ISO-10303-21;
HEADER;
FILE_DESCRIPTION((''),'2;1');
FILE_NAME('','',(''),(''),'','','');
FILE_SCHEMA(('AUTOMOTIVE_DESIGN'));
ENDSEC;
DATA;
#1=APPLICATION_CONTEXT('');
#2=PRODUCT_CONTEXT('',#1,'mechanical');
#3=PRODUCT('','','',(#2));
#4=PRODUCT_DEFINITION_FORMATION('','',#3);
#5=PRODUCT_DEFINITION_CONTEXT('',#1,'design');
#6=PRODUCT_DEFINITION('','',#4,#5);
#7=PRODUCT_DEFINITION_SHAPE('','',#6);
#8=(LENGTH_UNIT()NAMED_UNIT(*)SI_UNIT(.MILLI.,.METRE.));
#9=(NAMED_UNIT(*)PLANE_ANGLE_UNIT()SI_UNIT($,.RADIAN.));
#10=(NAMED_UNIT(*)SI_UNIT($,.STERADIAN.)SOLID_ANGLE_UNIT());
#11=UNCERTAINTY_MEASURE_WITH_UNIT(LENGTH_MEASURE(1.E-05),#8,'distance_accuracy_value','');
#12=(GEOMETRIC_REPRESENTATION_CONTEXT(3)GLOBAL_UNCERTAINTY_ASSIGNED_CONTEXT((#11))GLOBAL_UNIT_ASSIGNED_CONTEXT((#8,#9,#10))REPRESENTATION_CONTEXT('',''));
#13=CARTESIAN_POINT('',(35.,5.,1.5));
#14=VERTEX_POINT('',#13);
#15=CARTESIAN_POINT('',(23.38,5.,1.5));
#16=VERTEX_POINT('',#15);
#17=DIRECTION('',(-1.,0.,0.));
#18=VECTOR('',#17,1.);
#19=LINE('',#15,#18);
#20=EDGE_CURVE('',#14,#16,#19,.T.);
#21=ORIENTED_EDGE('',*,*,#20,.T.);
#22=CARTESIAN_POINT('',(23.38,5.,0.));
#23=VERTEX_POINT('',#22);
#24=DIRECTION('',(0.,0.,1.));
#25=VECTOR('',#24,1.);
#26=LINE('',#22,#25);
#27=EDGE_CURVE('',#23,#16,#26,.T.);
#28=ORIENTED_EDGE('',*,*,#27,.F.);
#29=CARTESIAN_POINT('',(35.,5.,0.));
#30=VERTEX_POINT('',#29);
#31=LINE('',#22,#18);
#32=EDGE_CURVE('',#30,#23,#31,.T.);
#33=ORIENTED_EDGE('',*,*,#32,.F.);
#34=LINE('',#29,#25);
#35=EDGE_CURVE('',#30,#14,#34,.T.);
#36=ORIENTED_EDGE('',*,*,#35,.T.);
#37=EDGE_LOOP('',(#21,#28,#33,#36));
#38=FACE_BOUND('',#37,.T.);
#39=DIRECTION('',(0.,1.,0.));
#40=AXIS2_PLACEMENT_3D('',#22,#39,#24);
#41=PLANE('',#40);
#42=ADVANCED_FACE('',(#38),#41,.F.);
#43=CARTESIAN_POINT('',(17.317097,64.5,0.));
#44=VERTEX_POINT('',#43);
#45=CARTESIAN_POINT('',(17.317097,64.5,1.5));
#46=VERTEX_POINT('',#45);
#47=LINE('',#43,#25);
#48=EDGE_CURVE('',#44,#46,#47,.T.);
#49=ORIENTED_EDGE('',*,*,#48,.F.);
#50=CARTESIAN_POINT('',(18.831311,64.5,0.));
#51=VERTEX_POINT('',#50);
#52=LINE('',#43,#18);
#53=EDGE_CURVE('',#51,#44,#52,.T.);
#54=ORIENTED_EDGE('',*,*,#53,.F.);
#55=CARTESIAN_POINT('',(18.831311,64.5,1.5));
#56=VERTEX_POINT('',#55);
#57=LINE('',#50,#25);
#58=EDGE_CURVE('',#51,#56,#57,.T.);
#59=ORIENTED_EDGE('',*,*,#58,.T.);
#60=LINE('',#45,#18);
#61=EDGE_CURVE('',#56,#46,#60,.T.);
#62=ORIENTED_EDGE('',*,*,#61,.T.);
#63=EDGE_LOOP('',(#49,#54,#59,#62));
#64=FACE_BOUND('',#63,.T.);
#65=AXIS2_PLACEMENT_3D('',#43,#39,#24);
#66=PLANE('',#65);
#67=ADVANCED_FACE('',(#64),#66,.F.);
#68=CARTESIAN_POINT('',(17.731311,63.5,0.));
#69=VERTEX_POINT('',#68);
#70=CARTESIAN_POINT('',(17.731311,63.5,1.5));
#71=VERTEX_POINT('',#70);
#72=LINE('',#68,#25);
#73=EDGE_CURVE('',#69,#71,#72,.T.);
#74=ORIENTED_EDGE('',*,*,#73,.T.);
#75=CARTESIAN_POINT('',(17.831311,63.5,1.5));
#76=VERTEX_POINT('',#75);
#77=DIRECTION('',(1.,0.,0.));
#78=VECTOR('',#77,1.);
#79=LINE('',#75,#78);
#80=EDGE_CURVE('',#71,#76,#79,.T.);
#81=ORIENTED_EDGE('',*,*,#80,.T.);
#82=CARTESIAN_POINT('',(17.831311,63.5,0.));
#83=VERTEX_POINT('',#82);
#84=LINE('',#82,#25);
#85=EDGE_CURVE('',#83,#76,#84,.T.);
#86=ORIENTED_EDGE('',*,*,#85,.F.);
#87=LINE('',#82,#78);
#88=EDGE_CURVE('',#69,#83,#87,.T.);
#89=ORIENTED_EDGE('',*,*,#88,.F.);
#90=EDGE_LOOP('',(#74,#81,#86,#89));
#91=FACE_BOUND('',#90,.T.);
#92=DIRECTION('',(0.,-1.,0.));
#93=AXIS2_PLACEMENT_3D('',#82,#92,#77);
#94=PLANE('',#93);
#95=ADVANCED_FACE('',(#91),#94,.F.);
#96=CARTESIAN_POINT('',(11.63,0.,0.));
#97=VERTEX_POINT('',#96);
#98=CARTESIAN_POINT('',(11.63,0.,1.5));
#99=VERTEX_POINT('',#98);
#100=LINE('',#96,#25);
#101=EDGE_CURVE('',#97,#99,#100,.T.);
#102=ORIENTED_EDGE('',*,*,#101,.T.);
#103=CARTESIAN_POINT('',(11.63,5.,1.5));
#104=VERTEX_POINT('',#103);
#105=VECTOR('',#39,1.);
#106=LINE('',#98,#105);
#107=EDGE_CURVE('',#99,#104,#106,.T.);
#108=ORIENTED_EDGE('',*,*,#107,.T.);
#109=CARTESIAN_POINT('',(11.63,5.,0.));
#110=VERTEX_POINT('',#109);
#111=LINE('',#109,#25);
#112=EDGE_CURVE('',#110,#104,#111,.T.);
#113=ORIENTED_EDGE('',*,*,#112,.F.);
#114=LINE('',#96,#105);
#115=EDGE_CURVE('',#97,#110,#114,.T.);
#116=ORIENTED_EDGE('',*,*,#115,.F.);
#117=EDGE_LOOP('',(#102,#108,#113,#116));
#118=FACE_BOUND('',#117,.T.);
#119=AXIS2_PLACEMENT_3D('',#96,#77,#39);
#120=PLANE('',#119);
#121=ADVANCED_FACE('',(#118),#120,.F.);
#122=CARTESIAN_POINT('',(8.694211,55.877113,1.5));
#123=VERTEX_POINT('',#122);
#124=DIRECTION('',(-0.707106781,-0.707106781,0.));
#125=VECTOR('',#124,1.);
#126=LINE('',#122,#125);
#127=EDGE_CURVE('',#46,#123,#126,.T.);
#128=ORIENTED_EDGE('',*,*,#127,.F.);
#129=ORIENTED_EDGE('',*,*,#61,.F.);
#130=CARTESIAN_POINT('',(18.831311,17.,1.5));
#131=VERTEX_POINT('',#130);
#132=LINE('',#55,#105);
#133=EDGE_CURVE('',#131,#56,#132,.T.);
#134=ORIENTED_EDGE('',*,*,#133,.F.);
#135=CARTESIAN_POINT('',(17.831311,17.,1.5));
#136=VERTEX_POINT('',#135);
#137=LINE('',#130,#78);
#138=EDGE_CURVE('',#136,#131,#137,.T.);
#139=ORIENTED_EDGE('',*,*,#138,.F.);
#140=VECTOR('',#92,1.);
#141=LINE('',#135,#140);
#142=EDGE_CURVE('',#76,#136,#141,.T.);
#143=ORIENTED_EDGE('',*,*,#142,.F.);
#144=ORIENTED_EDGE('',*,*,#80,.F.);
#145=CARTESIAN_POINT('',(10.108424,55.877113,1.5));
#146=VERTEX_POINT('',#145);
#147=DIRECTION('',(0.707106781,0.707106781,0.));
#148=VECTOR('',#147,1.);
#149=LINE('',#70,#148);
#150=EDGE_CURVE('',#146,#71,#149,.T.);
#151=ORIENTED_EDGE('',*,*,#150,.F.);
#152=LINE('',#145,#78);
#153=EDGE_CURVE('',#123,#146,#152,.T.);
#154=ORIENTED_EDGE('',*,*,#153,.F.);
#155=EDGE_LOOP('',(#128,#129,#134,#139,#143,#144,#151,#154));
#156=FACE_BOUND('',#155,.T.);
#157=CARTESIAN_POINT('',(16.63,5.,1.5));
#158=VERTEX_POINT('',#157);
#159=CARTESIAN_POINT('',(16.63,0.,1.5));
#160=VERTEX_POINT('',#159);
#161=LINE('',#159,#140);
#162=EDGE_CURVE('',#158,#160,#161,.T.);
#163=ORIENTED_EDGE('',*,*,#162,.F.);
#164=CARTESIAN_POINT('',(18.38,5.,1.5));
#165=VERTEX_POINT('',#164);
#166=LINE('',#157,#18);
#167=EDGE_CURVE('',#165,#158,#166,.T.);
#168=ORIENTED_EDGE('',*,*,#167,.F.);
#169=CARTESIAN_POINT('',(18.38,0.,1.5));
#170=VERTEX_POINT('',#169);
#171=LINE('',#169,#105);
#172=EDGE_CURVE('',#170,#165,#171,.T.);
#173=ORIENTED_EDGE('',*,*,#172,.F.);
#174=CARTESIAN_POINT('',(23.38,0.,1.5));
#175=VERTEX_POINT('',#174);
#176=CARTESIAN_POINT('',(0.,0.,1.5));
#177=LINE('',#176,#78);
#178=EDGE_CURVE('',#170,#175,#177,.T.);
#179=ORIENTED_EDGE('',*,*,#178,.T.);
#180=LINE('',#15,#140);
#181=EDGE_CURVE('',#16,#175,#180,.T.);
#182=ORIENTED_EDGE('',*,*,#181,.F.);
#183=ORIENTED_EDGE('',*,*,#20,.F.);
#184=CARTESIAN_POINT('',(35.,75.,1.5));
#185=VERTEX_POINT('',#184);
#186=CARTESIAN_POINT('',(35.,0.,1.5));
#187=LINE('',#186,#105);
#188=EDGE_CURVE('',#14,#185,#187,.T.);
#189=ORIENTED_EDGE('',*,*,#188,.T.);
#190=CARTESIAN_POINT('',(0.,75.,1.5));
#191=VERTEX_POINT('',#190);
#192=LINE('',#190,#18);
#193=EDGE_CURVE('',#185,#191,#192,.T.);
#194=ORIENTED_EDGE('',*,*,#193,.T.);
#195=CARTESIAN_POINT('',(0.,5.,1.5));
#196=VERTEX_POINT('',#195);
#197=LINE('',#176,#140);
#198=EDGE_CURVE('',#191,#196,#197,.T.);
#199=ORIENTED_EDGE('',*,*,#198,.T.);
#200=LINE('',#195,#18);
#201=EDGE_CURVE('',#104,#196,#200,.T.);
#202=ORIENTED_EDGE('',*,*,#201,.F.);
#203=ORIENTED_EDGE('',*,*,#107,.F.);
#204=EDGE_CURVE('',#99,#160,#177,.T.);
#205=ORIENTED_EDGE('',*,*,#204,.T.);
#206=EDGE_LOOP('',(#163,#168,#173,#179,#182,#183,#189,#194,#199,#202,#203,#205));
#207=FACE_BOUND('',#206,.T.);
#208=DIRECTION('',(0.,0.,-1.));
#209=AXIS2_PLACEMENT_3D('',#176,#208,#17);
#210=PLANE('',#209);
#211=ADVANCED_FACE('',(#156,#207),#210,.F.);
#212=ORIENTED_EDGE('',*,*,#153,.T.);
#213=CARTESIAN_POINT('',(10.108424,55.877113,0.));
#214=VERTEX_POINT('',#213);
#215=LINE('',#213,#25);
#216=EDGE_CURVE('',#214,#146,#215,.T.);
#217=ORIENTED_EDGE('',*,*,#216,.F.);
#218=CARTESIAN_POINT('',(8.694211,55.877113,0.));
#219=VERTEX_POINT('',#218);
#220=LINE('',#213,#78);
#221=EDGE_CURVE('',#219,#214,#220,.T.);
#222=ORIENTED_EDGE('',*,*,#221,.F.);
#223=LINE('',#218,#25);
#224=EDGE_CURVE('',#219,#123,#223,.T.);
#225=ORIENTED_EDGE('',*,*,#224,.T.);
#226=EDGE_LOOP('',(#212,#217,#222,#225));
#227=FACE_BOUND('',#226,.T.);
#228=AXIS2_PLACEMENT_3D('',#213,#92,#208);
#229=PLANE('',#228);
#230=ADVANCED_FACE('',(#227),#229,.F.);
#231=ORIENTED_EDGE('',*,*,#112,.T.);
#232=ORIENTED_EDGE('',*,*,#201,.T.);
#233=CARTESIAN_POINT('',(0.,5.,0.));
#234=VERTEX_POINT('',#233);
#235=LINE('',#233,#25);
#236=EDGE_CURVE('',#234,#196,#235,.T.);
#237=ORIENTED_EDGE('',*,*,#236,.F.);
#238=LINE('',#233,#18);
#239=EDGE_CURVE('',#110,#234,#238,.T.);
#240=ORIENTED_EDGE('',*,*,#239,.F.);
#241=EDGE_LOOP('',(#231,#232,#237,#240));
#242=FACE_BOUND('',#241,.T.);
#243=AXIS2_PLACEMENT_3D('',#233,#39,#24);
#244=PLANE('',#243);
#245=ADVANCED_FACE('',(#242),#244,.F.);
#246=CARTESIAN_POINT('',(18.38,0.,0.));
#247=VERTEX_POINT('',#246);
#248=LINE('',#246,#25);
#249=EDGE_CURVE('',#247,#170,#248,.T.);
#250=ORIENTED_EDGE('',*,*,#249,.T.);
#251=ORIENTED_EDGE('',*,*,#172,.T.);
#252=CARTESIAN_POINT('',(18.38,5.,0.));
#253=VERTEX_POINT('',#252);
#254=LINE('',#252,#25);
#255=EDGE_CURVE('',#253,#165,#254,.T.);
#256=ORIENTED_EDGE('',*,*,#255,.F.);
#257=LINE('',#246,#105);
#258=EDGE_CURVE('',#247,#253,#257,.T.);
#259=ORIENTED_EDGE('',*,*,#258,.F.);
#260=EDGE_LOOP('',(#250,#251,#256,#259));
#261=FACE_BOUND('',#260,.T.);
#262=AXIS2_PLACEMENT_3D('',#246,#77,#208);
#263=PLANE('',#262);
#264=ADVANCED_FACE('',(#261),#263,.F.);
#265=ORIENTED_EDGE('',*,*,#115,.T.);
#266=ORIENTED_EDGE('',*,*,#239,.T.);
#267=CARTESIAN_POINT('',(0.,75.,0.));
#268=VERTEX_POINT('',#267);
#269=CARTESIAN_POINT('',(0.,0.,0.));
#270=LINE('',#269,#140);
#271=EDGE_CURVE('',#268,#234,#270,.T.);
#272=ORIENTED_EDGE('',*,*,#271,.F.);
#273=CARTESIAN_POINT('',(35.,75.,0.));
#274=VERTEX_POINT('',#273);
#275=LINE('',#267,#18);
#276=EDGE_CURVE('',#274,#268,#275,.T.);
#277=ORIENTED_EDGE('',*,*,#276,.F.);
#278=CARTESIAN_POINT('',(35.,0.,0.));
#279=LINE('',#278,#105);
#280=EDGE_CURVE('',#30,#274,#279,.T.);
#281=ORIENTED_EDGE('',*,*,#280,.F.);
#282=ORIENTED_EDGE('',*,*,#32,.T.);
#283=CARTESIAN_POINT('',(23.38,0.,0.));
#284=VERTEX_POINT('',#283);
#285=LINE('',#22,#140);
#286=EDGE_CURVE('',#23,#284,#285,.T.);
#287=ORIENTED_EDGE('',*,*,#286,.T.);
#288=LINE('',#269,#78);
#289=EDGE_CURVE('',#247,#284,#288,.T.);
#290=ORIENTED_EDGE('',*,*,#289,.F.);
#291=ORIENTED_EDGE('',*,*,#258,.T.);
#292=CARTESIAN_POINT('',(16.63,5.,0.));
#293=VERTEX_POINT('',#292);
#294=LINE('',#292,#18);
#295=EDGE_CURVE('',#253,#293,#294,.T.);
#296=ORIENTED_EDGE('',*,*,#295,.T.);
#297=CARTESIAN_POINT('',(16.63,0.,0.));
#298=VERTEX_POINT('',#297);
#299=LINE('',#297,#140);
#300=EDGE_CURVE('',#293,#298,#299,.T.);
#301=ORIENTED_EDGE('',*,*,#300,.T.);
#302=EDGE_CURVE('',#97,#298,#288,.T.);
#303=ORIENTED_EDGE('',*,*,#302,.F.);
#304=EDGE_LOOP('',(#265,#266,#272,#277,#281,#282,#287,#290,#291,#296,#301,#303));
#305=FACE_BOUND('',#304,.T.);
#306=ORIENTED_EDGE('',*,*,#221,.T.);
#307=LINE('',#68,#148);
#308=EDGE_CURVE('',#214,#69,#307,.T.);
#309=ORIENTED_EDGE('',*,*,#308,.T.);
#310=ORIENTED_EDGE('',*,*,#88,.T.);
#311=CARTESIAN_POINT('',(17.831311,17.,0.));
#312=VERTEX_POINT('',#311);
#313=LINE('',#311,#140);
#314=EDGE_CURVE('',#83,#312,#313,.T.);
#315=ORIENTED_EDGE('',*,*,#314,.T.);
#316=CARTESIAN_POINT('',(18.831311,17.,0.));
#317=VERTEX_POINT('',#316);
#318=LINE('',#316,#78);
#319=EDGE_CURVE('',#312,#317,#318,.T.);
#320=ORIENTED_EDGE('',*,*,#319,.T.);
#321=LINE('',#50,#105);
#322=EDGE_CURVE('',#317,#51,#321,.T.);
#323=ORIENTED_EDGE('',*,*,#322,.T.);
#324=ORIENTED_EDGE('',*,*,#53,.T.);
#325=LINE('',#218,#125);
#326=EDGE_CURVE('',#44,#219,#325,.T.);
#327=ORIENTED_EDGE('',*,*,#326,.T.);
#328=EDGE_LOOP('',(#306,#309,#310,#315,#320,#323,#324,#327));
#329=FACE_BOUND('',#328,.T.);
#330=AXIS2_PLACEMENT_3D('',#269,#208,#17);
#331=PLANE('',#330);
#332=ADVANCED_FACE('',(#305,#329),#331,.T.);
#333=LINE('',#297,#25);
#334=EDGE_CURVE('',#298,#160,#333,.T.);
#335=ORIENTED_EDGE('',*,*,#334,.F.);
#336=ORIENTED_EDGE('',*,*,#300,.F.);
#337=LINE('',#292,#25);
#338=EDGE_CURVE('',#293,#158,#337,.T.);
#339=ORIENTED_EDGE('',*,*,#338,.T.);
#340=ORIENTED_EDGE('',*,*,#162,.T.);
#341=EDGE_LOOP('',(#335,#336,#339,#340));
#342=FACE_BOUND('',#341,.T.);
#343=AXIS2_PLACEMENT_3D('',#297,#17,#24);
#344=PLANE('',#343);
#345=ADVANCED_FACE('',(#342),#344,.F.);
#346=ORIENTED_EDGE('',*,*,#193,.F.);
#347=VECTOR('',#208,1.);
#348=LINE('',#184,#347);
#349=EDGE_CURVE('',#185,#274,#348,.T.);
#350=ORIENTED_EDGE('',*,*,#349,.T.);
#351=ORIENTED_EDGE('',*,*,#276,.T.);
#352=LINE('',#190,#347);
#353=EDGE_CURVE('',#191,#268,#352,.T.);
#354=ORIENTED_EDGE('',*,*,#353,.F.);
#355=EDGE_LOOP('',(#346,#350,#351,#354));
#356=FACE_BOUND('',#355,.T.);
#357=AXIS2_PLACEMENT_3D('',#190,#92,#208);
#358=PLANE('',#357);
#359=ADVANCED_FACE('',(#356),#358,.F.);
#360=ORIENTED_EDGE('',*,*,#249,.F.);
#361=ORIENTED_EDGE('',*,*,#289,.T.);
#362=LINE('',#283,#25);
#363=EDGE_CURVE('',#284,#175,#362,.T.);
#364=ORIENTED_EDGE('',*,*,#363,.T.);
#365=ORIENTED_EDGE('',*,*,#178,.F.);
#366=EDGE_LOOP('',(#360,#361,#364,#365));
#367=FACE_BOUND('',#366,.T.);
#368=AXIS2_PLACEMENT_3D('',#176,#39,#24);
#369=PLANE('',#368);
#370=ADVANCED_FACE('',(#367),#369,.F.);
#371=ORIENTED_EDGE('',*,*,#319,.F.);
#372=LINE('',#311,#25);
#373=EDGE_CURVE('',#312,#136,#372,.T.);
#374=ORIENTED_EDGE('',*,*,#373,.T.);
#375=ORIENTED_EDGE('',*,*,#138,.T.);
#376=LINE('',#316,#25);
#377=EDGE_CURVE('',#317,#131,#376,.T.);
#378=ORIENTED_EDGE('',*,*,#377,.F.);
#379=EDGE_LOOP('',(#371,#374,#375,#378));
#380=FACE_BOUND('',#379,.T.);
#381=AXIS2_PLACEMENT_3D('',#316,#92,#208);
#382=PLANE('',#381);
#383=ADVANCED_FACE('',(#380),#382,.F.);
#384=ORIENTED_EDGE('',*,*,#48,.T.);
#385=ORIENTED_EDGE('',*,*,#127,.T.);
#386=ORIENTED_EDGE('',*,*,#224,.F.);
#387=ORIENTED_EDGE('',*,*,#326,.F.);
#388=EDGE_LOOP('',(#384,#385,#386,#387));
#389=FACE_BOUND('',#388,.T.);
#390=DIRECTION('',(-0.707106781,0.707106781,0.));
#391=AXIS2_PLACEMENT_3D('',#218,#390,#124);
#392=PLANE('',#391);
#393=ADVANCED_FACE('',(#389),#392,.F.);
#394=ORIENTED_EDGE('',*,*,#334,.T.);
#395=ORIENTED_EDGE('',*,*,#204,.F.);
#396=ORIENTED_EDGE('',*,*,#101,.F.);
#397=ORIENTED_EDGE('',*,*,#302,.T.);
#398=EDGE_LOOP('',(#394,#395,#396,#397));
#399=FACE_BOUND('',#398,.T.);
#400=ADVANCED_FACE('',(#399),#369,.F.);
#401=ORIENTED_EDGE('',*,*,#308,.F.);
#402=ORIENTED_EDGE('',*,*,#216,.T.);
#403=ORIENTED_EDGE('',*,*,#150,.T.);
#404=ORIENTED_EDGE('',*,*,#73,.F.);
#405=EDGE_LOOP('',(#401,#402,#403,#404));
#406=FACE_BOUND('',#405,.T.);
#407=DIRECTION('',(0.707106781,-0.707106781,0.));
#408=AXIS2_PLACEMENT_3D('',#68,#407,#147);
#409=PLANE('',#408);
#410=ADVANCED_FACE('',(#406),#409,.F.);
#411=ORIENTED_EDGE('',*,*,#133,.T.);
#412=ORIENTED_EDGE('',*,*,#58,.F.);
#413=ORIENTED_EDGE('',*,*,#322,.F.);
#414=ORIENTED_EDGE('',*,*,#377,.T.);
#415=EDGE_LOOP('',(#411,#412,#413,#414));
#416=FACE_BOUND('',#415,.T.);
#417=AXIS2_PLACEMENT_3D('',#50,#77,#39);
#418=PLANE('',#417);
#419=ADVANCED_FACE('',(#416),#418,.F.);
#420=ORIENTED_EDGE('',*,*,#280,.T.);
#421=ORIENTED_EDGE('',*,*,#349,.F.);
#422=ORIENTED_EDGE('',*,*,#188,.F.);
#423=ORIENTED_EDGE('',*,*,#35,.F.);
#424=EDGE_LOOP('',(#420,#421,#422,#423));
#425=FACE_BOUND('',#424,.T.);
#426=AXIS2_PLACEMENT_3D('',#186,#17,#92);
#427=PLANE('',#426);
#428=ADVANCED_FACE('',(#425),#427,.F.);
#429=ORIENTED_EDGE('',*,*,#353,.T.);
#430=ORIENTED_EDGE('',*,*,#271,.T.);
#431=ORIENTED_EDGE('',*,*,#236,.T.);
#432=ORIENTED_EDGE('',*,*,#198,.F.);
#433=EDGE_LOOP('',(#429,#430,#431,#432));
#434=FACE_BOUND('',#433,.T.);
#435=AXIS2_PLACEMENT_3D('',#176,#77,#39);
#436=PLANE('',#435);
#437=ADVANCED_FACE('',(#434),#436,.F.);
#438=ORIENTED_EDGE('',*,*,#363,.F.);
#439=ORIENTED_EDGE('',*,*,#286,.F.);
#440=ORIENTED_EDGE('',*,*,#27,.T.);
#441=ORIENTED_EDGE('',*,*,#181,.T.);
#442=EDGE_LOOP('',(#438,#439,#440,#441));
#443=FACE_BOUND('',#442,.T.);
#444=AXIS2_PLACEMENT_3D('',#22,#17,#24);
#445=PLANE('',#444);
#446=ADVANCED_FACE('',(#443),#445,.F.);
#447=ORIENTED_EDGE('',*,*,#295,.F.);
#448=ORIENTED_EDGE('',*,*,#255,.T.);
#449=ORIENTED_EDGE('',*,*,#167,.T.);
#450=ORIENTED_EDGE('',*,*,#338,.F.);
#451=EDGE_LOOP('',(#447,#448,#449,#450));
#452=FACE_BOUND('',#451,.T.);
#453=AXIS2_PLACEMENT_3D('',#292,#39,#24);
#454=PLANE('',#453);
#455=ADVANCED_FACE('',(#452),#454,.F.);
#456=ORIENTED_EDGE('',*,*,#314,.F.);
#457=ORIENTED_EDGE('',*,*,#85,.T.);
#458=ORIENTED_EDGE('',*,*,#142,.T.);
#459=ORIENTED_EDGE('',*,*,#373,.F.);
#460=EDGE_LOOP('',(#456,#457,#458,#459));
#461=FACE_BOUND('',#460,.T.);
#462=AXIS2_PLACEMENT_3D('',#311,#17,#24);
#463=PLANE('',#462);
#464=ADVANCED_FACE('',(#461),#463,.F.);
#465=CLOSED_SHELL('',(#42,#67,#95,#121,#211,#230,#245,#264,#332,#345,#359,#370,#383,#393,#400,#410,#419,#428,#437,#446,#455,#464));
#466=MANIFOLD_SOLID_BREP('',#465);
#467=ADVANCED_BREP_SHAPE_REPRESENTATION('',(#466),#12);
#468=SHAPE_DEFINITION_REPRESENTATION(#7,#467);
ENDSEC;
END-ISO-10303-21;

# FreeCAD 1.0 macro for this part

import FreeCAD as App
import Part
import Sketcher
Q = App.Units.Quantity


def add_polygon(sketch, points):
    """Adds a closed chain of lines whose ends are joined by coincident constraints."""
    first, n = sketch.GeometryCount, len(points)
    for a, b in zip(points, points[1:] + points[:1]):
        sketch.addGeometry(Part.LineSegment(App.Vector(*a, 0), App.Vector(*b, 0)), False)
    for i in range(n):
        sketch.addConstraint(Sketcher.Constraint("Coincident", first + i, 2, first + (i + 1) % n, 1))

doc = App.newDocument("Part")
params = doc.addObject("Spreadsheet::Sheet", "Params")
for row, (alias, value) in enumerate([
    ("sketch1_width", "35 mm"),
    ("sketch1_height", "75 mm"),
    ("pad1_length", "1.5 mm"),
    ("sketch2_height", "5 mm"),
    ("sketch2_width", "11.63 mm"),
    ("sketch2_width2", "11.62 mm"),
    ("pocket1_length", "1.5 mm"),
    ("sketch3_width", "1 mm"),
    ("sketch3_width2", "0.1 mm"),
    ("sketch3_height", "46.5 mm"),
    ("sketch3_height2", "47.5 mm"),
    ("pocket2_length", "1.5 mm"),
], start=1):
    params.set(f"A{row}", alias)
    params.set(f"B{row}", "=" + value)
    params.setAlias(f"B{row}", alias)

body = doc.addObject("PartDesign::Body", "Body")

sketch1 = body.newObject("Sketcher::SketchObject", "Sketch")
sketch1.AttachmentSupport = (doc.getObject("XY_Plane"), [""])
sketch1.MapMode = "FlatFace"
add_polygon(sketch1, [(0, 75), (0, 0), (35, 0), (35, 75)])
sketch1.addConstraint([
    Sketcher.Constraint("Vertical", 0),
    Sketcher.Constraint("Horizontal", 1),
    Sketcher.Constraint("Vertical", 2),
    Sketcher.Constraint("Horizontal", 3),
    Sketcher.Constraint("Coincident", 0, 2, -1, 1),
    Sketcher.Constraint("DistanceX", 1, 1, 1, 2, 35.0),
    Sketcher.Constraint("DistanceY", 0, 2, 0, 1, 75.0),
])
sketch1.setExpression("Constraints[9]", "Params.sketch1_width")
sketch1.setExpression("Constraints[10]", "Params.sketch1_height")
pad1 = body.newObject("PartDesign::Pad", "Pad")
pad1.Profile = sketch1
pad1.setExpression("Length", "Params.pad1_length")

sketch2 = body.newObject("Sketcher::SketchObject", "Sketch001")
sketch2.AttachmentSupport = (doc.getObject("XY_Plane"), [""])
sketch2.MapMode = "FlatFace"
sketch2.AttachmentOffset = App.Placement(App.Vector(0, 0, 1.5), App.Rotation())
add_polygon(sketch2, [(0, 5), (0, 0), (11.6, 0), (11.6, 5)])
add_polygon(sketch2, [(23.4, 5), (23.4, 0), (35, 0), (35, 5)])
add_polygon(sketch2, [(16.6, 5), (16.6, 0), (18.4, 0), (18.4, 5)])
sketch2.addConstraint([
    Sketcher.Constraint("Vertical", 0),
    Sketcher.Constraint("Horizontal", 1),
    Sketcher.Constraint("Vertical", 2),
    Sketcher.Constraint("Horizontal", 3),
    Sketcher.Constraint("Vertical", 4),
    Sketcher.Constraint("Horizontal", 5),
    Sketcher.Constraint("Vertical", 6),
    Sketcher.Constraint("Horizontal", 7),
    Sketcher.Constraint("Vertical", 8),
    Sketcher.Constraint("Horizontal", 9),
    Sketcher.Constraint("Vertical", 10),
    Sketcher.Constraint("Horizontal", 11),
    Sketcher.Constraint("Coincident", 0, 2, -1, 1),
    Sketcher.Constraint("PointOnObject", 4, 2, -1),
    Sketcher.Constraint("PointOnObject", 8, 2, -1),
    Sketcher.Constraint("Horizontal", 3, 2, 6, 2),
    Sketcher.Constraint("Horizontal", 7, 2, 10, 2),
    Sketcher.Constraint("DistanceY", 0, 2, 0, 1, 5.0),
    Sketcher.Constraint("DistanceX", -1, 1, 5, 2, 35.0),
    Sketcher.Constraint("DistanceX", 1, 2, 8, 2, 5.0),
    Sketcher.Constraint("DistanceX", 9, 2, 4, 2, 5.0),
    Sketcher.Constraint("DistanceX", 1, 1, 1, 2, 11.63),
    Sketcher.Constraint("DistanceX", 5, 1, 5, 2, 11.62),
])
sketch2.setExpression("Constraints[29]", "Params.sketch2_height")
sketch2.setExpression("Constraints[33]", "Params.sketch2_width")
sketch2.setExpression("Constraints[34]", "Params.sketch2_width2")
pocket1 = body.newObject("PartDesign::Pocket", "Pocket")
pocket1.Profile = sketch2
pocket1.setExpression("Length", "Params.pocket1_length")

sketch3 = body.newObject("Sketcher::SketchObject", "Sketch002")
sketch3.AttachmentSupport = (doc.getObject("XY_Plane"), [""])
sketch3.MapMode = "FlatFace"
sketch3.AttachmentOffset = App.Placement(App.Vector(0, 0, 1.5), App.Rotation())
add_polygon(sketch3, [(17.32, 64.5), (8.69, 55.88), (10.11, 55.88), (17.73, 63.5), (17.83, 63.5), (17.83, 17), (18.83, 17), (18.83, 64.5)])
sketch3.addConstraint([
    Sketcher.Constraint("Horizontal", 1),
    Sketcher.Constraint("Horizontal", 3),
    Sketcher.Constraint("Vertical", 4),
    Sketcher.Constraint("Horizontal", 5),
    Sketcher.Constraint("Vertical", 6),
    Sketcher.Constraint("Horizontal", 7),
    Sketcher.Constraint("Parallel", 0, 2),
    Sketcher.Constraint("DistanceX", 5, 1, 5, 2, 1.0),
    Sketcher.Constraint("Angle", 0, Q("-135 deg")),
    Sketcher.Constraint("DistanceX", 3, 1, 3, 2, 0.1),
    Sketcher.Constraint("DistanceY", 4, 2, 4, 1, 46.5),
    Sketcher.Constraint("DistanceY", 6, 1, 6, 2, 47.5),
    Sketcher.Constraint("DistanceY", -1, 1, 4, 2, 17.0),
    Sketcher.Constraint("DistanceX", 0, 2, 2, 2, 9.0371),
    Sketcher.Constraint("Distance", 2, 10.78039),
    Sketcher.Constraint("DistanceX", -1, 1, 0, 2, 8.694211),
])
sketch3.setExpression("Constraints[15]", "Params.sketch3_width")
sketch3.setExpression("Constraints[17]", "Params.sketch3_width2")
sketch3.setExpression("Constraints[18]", "Params.sketch3_height")
sketch3.setExpression("Constraints[19]", "Params.sketch3_height2")
pocket2 = body.newObject("PartDesign::Pocket", "Pocket001")
pocket2.Profile = sketch3
pocket2.setExpression("Length", "Params.pocket2_length")

doc.recompute()
